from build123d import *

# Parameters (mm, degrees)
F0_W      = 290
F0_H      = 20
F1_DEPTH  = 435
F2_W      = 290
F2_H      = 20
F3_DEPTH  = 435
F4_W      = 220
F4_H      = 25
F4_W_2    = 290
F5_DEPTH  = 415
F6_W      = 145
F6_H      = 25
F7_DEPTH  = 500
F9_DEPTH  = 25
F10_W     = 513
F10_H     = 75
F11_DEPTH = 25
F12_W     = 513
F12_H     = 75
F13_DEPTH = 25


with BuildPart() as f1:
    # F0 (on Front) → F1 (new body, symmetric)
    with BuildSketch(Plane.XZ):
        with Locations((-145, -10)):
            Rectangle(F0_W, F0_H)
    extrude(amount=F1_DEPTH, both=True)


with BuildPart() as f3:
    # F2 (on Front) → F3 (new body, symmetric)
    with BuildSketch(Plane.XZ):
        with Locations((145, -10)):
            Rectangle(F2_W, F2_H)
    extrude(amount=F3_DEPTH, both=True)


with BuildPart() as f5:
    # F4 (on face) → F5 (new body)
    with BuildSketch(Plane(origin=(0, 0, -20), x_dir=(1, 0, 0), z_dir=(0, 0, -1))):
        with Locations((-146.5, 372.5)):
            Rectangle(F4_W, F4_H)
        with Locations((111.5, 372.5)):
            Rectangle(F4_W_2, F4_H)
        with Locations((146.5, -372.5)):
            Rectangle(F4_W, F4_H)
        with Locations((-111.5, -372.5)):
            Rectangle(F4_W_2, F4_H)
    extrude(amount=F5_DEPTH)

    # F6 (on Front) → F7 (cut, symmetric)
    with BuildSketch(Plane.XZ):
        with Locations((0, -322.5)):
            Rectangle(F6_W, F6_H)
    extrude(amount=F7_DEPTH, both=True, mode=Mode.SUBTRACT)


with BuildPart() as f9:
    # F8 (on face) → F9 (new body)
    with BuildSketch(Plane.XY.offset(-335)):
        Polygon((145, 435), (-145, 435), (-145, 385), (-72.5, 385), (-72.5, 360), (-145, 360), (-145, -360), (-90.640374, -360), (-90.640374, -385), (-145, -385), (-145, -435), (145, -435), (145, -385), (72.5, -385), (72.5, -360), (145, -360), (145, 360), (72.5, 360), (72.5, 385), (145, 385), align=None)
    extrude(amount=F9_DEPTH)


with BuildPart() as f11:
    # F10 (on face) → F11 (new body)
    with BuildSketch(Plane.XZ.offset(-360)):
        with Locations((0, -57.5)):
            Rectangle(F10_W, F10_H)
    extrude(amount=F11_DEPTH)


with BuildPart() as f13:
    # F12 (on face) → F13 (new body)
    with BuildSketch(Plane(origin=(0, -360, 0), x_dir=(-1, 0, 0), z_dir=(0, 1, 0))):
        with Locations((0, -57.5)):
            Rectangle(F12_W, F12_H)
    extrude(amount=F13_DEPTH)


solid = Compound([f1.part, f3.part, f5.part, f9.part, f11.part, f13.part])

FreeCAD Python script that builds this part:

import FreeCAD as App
import Part
import Sketcher
from FreeCAD import Vector

doc = App.newDocument("Part")
body = doc.addObject("PartDesign::Body", "Body")

# Sketch on XZ plane
sketch1 = body.newObject("Sketcher::SketchObject", "Sketch")
sketch1.AttachmentSupport = (doc.getObject("XZ_Plane"), [""])
sketch1.MapMode = "FlatFace"
sketch1.addGeometry(Part.LineSegment(Vector(-290, 0, 0), Vector(-290, -20, 0)), False)
sketch1.addGeometry(Part.LineSegment(Vector(-290, -20, 0), Vector(0, -20, 0)), False)
sketch1.addGeometry(Part.LineSegment(Vector(0, -20, 0), Vector(0, 0, 0)), False)
sketch1.addGeometry(Part.LineSegment(Vector(0, 0, 0), Vector(-290, 0, 0)), False)
sketch1.addConstraint(Sketcher.Constraint("Coincident", 0, 2, 1, 1))
sketch1.addConstraint(Sketcher.Constraint("Coincident", 1, 2, 2, 1))
sketch1.addConstraint(Sketcher.Constraint("Coincident", 2, 2, 3, 1))
sketch1.addConstraint(Sketcher.Constraint("Coincident", 3, 2, 0, 1))
sketch1.addConstraint(Sketcher.Constraint("Vertical", 0))
sketch1.addConstraint(Sketcher.Constraint("Horizontal", 1))
sketch1.addConstraint(Sketcher.Constraint("Vertical", 2))
sketch1.addConstraint(Sketcher.Constraint("Horizontal", 3))
sketch1.addConstraint(Sketcher.Constraint("Coincident", 2, 2, -1, 1))
sketch1.addConstraint(Sketcher.Constraint("DistanceX", 1, 1, 1, 2, 290.0))
sketch1.addConstraint(Sketcher.Constraint("DistanceY", 0, 2, 0, 1, 20.0))
pad1 = body.newObject("PartDesign::Pad", "Pad")
pad1.Profile = sketch1
pad1.Length = 870
pad1.Midplane = True
body2 = doc.addObject("PartDesign::Body", "Body001")

# Sketch on XZ plane
sketch2 = body2.newObject("Sketcher::SketchObject", "Sketch001")
sketch2.AttachmentSupport = (doc.getObject("XZ_Plane001"), [""])
sketch2.MapMode = "FlatFace"
sketch2.addGeometry(Part.LineSegment(Vector(0, 0, 0), Vector(0, -20, 0)), False)
sketch2.addGeometry(Part.LineSegment(Vector(0, -20, 0), Vector(290, -20, 0)), False)
sketch2.addGeometry(Part.LineSegment(Vector(290, -20, 0), Vector(290, 0, 0)), False)
sketch2.addGeometry(Part.LineSegment(Vector(290, 0, 0), Vector(0, 0, 0)), False)
sketch2.addConstraint(Sketcher.Constraint("Coincident", 0, 2, 1, 1))
sketch2.addConstraint(Sketcher.Constraint("Coincident", 1, 2, 2, 1))
sketch2.addConstraint(Sketcher.Constraint("Coincident", 2, 2, 3, 1))
sketch2.addConstraint(Sketcher.Constraint("Coincident", 3, 2, 0, 1))
sketch2.addConstraint(Sketcher.Constraint("Vertical", 0))
sketch2.addConstraint(Sketcher.Constraint("Horizontal", 1))
sketch2.addConstraint(Sketcher.Constraint("Vertical", 2))
sketch2.addConstraint(Sketcher.Constraint("Horizontal", 3))
sketch2.addConstraint(Sketcher.Constraint("Coincident", 3, 2, -1, 1))
sketch2.addConstraint(Sketcher.Constraint("DistanceX", 1, 1, 1, 2, 290.0))
sketch2.addConstraint(Sketcher.Constraint("DistanceY", 0, 2, 0, 1, 20.0))
pad2 = body2.newObject("PartDesign::Pad", "Pad001")
pad2.Profile = sketch2
pad2.Length = 870
pad2.Midplane = True
body3 = doc.addObject("PartDesign::Body", "Body002")
body3.AllowCompound = True

# Sketch on XY plane
sketch3 = body3.newObject("Sketcher::SketchObject", "Sketch002")
sketch3.AttachmentSupport = (doc.getObject("XY_Plane002"), [""])
sketch3.MapMode = "FlatFace"
sketch3.AttachmentOffset = App.Placement(Vector(0, 0, -20), App.Rotation())
sketch3.addGeometry(Part.LineSegment(Vector(-256.5, -385, 0), Vector(-256.5, -360, 0)), False)
sketch3.addGeometry(Part.LineSegment(Vector(-256.5, -360, 0), Vector(-36.5, -360, 0)), False)
sketch3.addGeometry(Part.LineSegment(Vector(-36.5, -360, 0), Vector(-36.5, -385, 0)), False)
sketch3.addGeometry(Part.LineSegment(Vector(-36.5, -385, 0), Vector(-256.5, -385, 0)), False)
sketch3.addGeometry(Part.LineSegment(Vector(-33.5, -385, 0), Vector(-33.5, -360, 0)), False)
sketch3.addGeometry(Part.LineSegment(Vector(-33.5, -360, 0), Vector(256.5, -360, 0)), False)
sketch3.addGeometry(Part.LineSegment(Vector(256.5, -360, 0), Vector(256.5, -385, 0)), False)
sketch3.addGeometry(Part.LineSegment(Vector(256.5, -385, 0), Vector(-33.5, -385, 0)), False)
sketch3.addGeometry(Part.LineSegment(Vector(36.5, 360, 0), Vector(36.5, 385, 0)), False)
sketch3.addGeometry(Part.LineSegment(Vector(36.5, 385, 0), Vector(256.5, 385, 0)), False)
sketch3.addGeometry(Part.LineSegment(Vector(256.5, 385, 0), Vector(256.5, 360, 0)), False)
sketch3.addGeometry(Part.LineSegment(Vector(256.5, 360, 0), Vector(36.5, 360, 0)), False)
sketch3.addGeometry(Part.LineSegment(Vector(-256.5, 360, 0), Vector(-256.5, 385, 0)), False)
sketch3.addGeometry(Part.LineSegment(Vector(-256.5, 385, 0), Vector(33.5, 385, 0)), False)
sketch3.addGeometry(Part.LineSegment(Vector(33.5, 385, 0), Vector(33.5, 360, 0)), False)
sketch3.addGeometry(Part.LineSegment(Vector(33.5, 360, 0), Vector(-256.5, 360, 0)), False)
sketch3.addConstraint(Sketcher.Constraint("Coincident", 0, 2, 1, 1))
sketch3.addConstraint(Sketcher.Constraint("Coincident", 1, 2, 2, 1))
sketch3.addConstraint(Sketcher.Constraint("Coincident", 2, 2, 3, 1))
sketch3.addConstraint(Sketcher.Constraint("Coincident", 3, 2, 0, 1))
sketch3.addConstraint(Sketcher.Constraint("Coincident", 4, 2, 5, 1))
sketch3.addConstraint(Sketcher.Constraint("Coincident", 5, 2, 6, 1))
sketch3.addConstraint(Sketcher.Constraint("Coincident", 6, 2, 7, 1))
sketch3.addConstraint(Sketcher.Constraint("Coincident", 7, 2, 4, 1))
sketch3.addConstraint(Sketcher.Constraint("Coincident", 8, 2, 9, 1))
sketch3.addConstraint(Sketcher.Constraint("Coincident", 9, 2, 10, 1))
sketch3.addConstraint(Sketcher.Constraint("Coincident", 10, 2, 11, 1))
sketch3.addConstraint(Sketcher.Constraint("Coincident", 11, 2, 8, 1))
sketch3.addConstraint(Sketcher.Constraint("Coincident", 12, 2, 13, 1))
sketch3.addConstraint(Sketcher.Constraint("Coincident", 13, 2, 14, 1))
sketch3.addConstraint(Sketcher.Constraint("Coincident", 14, 2, 15, 1))
sketch3.addConstraint(Sketcher.Constraint("Coincident", 15, 2, 12, 1))
sketch3.addConstraint(Sketcher.Constraint("Vertical", 0))
sketch3.addConstraint(Sketcher.Constraint("Horizontal", 1))
sketch3.addConstraint(Sketcher.Constraint("Vertical", 2))
sketch3.addConstraint(Sketcher.Constraint("Horizontal", 3))
sketch3.addConstraint(Sketcher.Constraint("Vertical", 4))
sketch3.addConstraint(Sketcher.Constraint("Horizontal", 5))
sketch3.addConstraint(Sketcher.Constraint("Vertical", 6))
sketch3.addConstraint(Sketcher.Constraint("Horizontal", 7))
sketch3.addConstraint(Sketcher.Constraint("Vertical", 8))
sketch3.addConstraint(Sketcher.Constraint("Horizontal", 9))
sketch3.addConstraint(Sketcher.Constraint("Vertical", 10))
sketch3.addConstraint(Sketcher.Constraint("Horizontal", 11))
sketch3.addConstraint(Sketcher.Constraint("Vertical", 12))
sketch3.addConstraint(Sketcher.Constraint("Horizontal", 13))
sketch3.addConstraint(Sketcher.Constraint("Vertical", 14))
sketch3.addConstraint(Sketcher.Constraint("Horizontal", 15))
sketch3.addConstraint(Sketcher.Constraint("Symmetric", 2, 2, 8, 2, -1, 1))
sketch3.addConstraint(Sketcher.Constraint("Symmetric", 0, 2, 10, 2, -1, 1))
sketch3.addConstraint(Sketcher.Constraint("Symmetric", 6, 2, 12, 2, -1, 1))
sketch3.addConstraint(Sketcher.Constraint("Symmetric", 4, 2, 14, 2, -1, 1))
sketch3.addConstraint(Sketcher.Constraint("Symmetric", 0, 2, 5, 2, -2))
sketch3.addConstraint(Sketcher.Constraint("Horizontal", 3, 2, 6, 2))
sketch3.addConstraint(Sketcher.Constraint("DistanceX", 1, 1, 1, 2, 220.0))
sketch3.addConstraint(Sketcher.Constraint("DistanceX", 5, 1, 5, 2, 290.0))
sketch3.addConstraint(Sketcher.Constraint("DistanceY", 0, 1, 0, 2, 25.0))
sketch3.addConstraint(Sketcher.Constraint("DistanceY", 0, 2, -1, 1, 360.0))
sketch3.addConstraint(Sketcher.Constraint("DistanceX", 1, 2, 4, 2, 3.0))
pad3 = body3.newObject("PartDesign::Pad", "Pad002")
pad3.Profile = sketch3
pad3.Length = 415
pad3.Reversed = True

# Sketch on XZ plane
sketch4 = body3.newObject("Sketcher::SketchObject", "Sketch003")
sketch4.AttachmentSupport = (doc.getObject("XZ_Plane002"), [""])
sketch4.MapMode = "FlatFace"
sketch4.addGeometry(Part.LineSegment(Vector(-72.5, -310, 0), Vector(-72.5, -335, 0)), False)
sketch4.addGeometry(Part.LineSegment(Vector(-72.5, -335, 0), Vector(72.5, -335, 0)), False)
sketch4.addGeometry(Part.LineSegment(Vector(72.5, -335, 0), Vector(72.5, -310, 0)), False)
sketch4.addGeometry(Part.LineSegment(Vector(72.5, -310, 0), Vector(-72.5, -310, 0)), False)
sketch4.addConstraint(Sketcher.Constraint("Coincident", 0, 2, 1, 1))
sketch4.addConstraint(Sketcher.Constraint("Coincident", 1, 2, 2, 1))
sketch4.addConstraint(Sketcher.Constraint("Coincident", 2, 2, 3, 1))
sketch4.addConstraint(Sketcher.Constraint("Coincident", 3, 2, 0, 1))
sketch4.addConstraint(Sketcher.Constraint("Vertical", 0))
sketch4.addConstraint(Sketcher.Constraint("Horizontal", 1))
sketch4.addConstraint(Sketcher.Constraint("Vertical", 2))
sketch4.addConstraint(Sketcher.Constraint("Horizontal", 3))
sketch4.addConstraint(Sketcher.Constraint("DistanceX", 1, 1, 1, 2, 145.0))
sketch4.addConstraint(Sketcher.Constraint("DistanceY", 0, 2, 0, 1, 25.0))
sketch4.addConstraint(Sketcher.Constraint("DistanceY", 0, 2, -1, 1, 335.0))
sketch4.addConstraint(Sketcher.Constraint("DistanceX", 0, 2, -1, 1, 72.5))
pocket1 = body3.newObject("PartDesign::Pocket", "Pocket")
pocket1.Profile = sketch4
pocket1.Length = 1000
pocket1.Midplane = True
body4 = doc.addObject("PartDesign::Body", "Body003")

# Sketch on XY plane
sketch5 = body4.newObject("Sketcher::SketchObject", "Sketch004")
sketch5.AttachmentSupport = (doc.getObject("XY_Plane003"), [""])
sketch5.MapMode = "FlatFace"
sketch5.AttachmentOffset = App.Placement(Vector(0, 0, -335), App.Rotation())
sketch5.addGeometry(Part.LineSegment(Vector(145, 435, 0), Vector(-145, 435, 0)), False)
sketch5.addGeometry(Part.LineSegment(Vector(-145, 435, 0), Vector(-145, 385, 0)), False)
sketch5.addGeometry(Part.LineSegment(Vector(-145, 385, 0), Vector(-72.5, 385, 0)), False)
sketch5.addGeometry(Part.LineSegment(Vector(-72.5, 385, 0), Vector(-72.5, 360, 0)), False)
sketch5.addGeometry(Part.LineSegment(Vector(-72.5, 360, 0), Vector(-145, 360, 0)), False)
sketch5.addGeometry(Part.LineSegment(Vector(-145, 360, 0), Vector(-145, -360, 0)), False)
sketch5.addGeometry(Part.LineSegment(Vector(-145, -360, 0), Vector(-90.640374, -360, 0)), False)
sketch5.addGeometry(Part.LineSegment(Vector(-90.640374, -360, 0), Vector(-90.640374, -385, 0)), False)
sketch5.addGeometry(Part.LineSegment(Vector(-90.640374, -385, 0), Vector(-145, -385, 0)), False)
sketch5.addGeometry(Part.LineSegment(Vector(-145, -385, 0), Vector(-145, -435, 0)), False)
sketch5.addGeometry(Part.LineSegment(Vector(-145, -435, 0), Vector(145, -435, 0)), False)
sketch5.addGeometry(Part.LineSegment(Vector(145, -435, 0), Vector(145, -385, 0)), False)
sketch5.addGeometry(Part.LineSegment(Vector(145, -385, 0), Vector(72.5, -385, 0)), False)
sketch5.addGeometry(Part.LineSegment(Vector(72.5, -385, 0), Vector(72.5, -360, 0)), False)
sketch5.addGeometry(Part.LineSegment(Vector(72.5, -360, 0), Vector(145, -360, 0)), False)
sketch5.addGeometry(Part.LineSegment(Vector(145, -360, 0), Vector(145, 360, 0)), False)
sketch5.addGeometry(Part.LineSegment(Vector(145, 360, 0), Vector(72.5, 360, 0)), False)
sketch5.addGeometry(Part.LineSegment(Vector(72.5, 360, 0), Vector(72.5, 385, 0)), False)
sketch5.addGeometry(Part.LineSegment(Vector(72.5, 385, 0), Vector(145, 385, 0)), False)
sketch5.addGeometry(Part.LineSegment(Vector(145, 385, 0), Vector(145, 435, 0)), False)
sketch5.addConstraint(Sketcher.Constraint("Coincident", 0, 2, 1, 1))
sketch5.addConstraint(Sketcher.Constraint("Coincident", 1, 2, 2, 1))
sketch5.addConstraint(Sketcher.Constraint("Coincident", 2, 2, 3, 1))
sketch5.addConstraint(Sketcher.Constraint("Coincident", 3, 2, 4, 1))
sketch5.addConstraint(Sketcher.Constraint("Coincident", 4, 2, 5, 1))
sketch5.addConstraint(Sketcher.Constraint("Coincident", 5, 2, 6, 1))
sketch5.addConstraint(Sketcher.Constraint("Coincident", 6, 2, 7, 1))
sketch5.addConstraint(Sketcher.Constraint("Coincident", 7, 2, 8, 1))
sketch5.addConstraint(Sketcher.Constraint("Coincident", 8, 2, 9, 1))
sketch5.addConstraint(Sketcher.Constraint("Coincident", 9, 2, 10, 1))
sketch5.addConstraint(Sketcher.Constraint("Coincident", 10, 2, 11, 1))
sketch5.addConstraint(Sketcher.Constraint("Coincident", 11, 2, 12, 1))
sketch5.addConstraint(Sketcher.Constraint("Coincident", 12, 2, 13, 1))
sketch5.addConstraint(Sketcher.Constraint("Coincident", 13, 2, 14, 1))
sketch5.addConstraint(Sketcher.Constraint("Coincident", 14, 2, 15, 1))
sketch5.addConstraint(Sketcher.Constraint("Coincident", 15, 2, 16, 1))
sketch5.addConstraint(Sketcher.Constraint("Coincident", 16, 2, 17, 1))
sketch5.addConstraint(Sketcher.Constraint("Coincident", 17, 2, 18, 1))
sketch5.addConstraint(Sketcher.Constraint("Coincident", 18, 2, 19, 1))
sketch5.addConstraint(Sketcher.Constraint("Coincident", 19, 2, 0, 1))
sketch5.addConstraint(Sketcher.Constraint("Horizontal", 0))
sketch5.addConstraint(Sketcher.Constraint("Vertical", 1))
sketch5.addConstraint(Sketcher.Constraint("Horizontal", 2))
sketch5.addConstraint(Sketcher.Constraint("Vertical", 3))
sketch5.addConstraint(Sketcher.Constraint("Horizontal", 4))
sketch5.addConstraint(Sketcher.Constraint("Vertical", 5))
sketch5.addConstraint(Sketcher.Constraint("Horizontal", 6))
sketch5.addConstraint(Sketcher.Constraint("Vertical", 7))
sketch5.addConstraint(Sketcher.Constraint("Horizontal", 8))
sketch5.addConstraint(Sketcher.Constraint("Vertical", 9))
sketch5.addConstraint(Sketcher.Constraint("Horizontal", 10))
sketch5.addConstraint(Sketcher.Constraint("Vertical", 11))
sketch5.addConstraint(Sketcher.Constraint("Horizontal", 12))
sketch5.addConstraint(Sketcher.Constraint("Vertical", 13))
sketch5.addConstraint(Sketcher.Constraint("Horizontal", 14))
sketch5.addConstraint(Sketcher.Constraint("Vertical", 15))
sketch5.addConstraint(Sketcher.Constraint("Horizontal", 16))
sketch5.addConstraint(Sketcher.Constraint("Vertical", 17))
sketch5.addConstraint(Sketcher.Constraint("Horizontal", 18))
sketch5.addConstraint(Sketcher.Constraint("Vertical", 19))
sketch5.addConstraint(Sketcher.Constraint("Symmetric", 0, 2, 10, 2, -1, 1))
sketch5.addConstraint(Sketcher.Constraint("Symmetric", 2, 2, 12, 2, -1, 1))
sketch5.addConstraint(Sketcher.Constraint("Symmetric", 4, 2, 14, 2, -1, 1))
sketch5.addConstraint(Sketcher.Constraint("Symmetric", 8, 2, 18, 2, -1, 1))
sketch5.addConstraint(Sketcher.Constraint("Symmetric", 8, 2, 11, 2, -2))
sketch5.addConstraint(Sketcher.Constraint("Symmetric", 3, 2, 16, 2, -2))
sketch5.addConstraint(Sketcher.Constraint("Horizontal", 6, 2, 13, 2))
sketch5.addConstraint(Sketcher.Constraint("Vertical", 1, 2, 4, 2))
sketch5.addConstraint(Sketcher.Constraint("DistanceX", 0, 2, 0, 1, 290.0))
sketch5.addConstraint(Sketcher.Constraint("DistanceY", 1, 2, 1, 1, 50.0))
sketch5.addConstraint(Sketcher.Constraint("DistanceY", 3, 2, 3, 1, 25.0))
sketch5.addConstraint(Sketcher.Constraint("DistanceY", 5, 2, 5, 1, 720.0))
sketch5.addConstraint(Sketcher.Constraint("DistanceX", 2, 1, 2, 2, 72.5))
sketch5.addConstraint(Sketcher.Constraint("DistanceX", 6, 1, 6, 2, 54.359626))
pad4 = body4.newObject("PartDesign::Pad", "Pad003")
pad4.Profile = sketch5
pad4.Length = 25
body5 = doc.addObject("PartDesign::Body", "Body004")

# Sketch on XZ plane
sketch6 = body5.newObject("Sketcher::SketchObject", "Sketch005")
sketch6.AttachmentSupport = (doc.getObject("XZ_Plane004"), [""])
sketch6.MapMode = "FlatFace"
sketch6.AttachmentOffset = App.Placement(Vector(0, 0, -360), App.Rotation())
sketch6.addGeometry(Part.LineSegment(Vector(-256.5, -20, 0), Vector(-256.5, -95, 0)), False)
sketch6.addGeometry(Part.LineSegment(Vector(-256.5, -95, 0), Vector(256.5, -95, 0)), False)
sketch6.addGeometry(Part.LineSegment(Vector(256.5, -95, 0), Vector(256.5, -20, 0)), False)
sketch6.addGeometry(Part.LineSegment(Vector(256.5, -20, 0), Vector(-256.5, -20, 0)), False)
sketch6.addConstraint(Sketcher.Constraint("Coincident", 0, 2, 1, 1))
sketch6.addConstraint(Sketcher.Constraint("Coincident", 1, 2, 2, 1))
sketch6.addConstraint(Sketcher.Constraint("Coincident", 2, 2, 3, 1))
sketch6.addConstraint(Sketcher.Constraint("Coincident", 3, 2, 0, 1))
sketch6.addConstraint(Sketcher.Constraint("Vertical", 0))
sketch6.addConstraint(Sketcher.Constraint("Horizontal", 1))
sketch6.addConstraint(Sketcher.Constraint("Vertical", 2))
sketch6.addConstraint(Sketcher.Constraint("Horizontal", 3))
sketch6.addConstraint(Sketcher.Constraint("DistanceX", 1, 1, 1, 2, 513.0))
sketch6.addConstraint(Sketcher.Constraint("DistanceY", 0, 2, 0, 1, 75.0))
sketch6.addConstraint(Sketcher.Constraint("DistanceY", 0, 2, -1, 1, 95.0))
sketch6.addConstraint(Sketcher.Constraint("DistanceX", 0, 2, -1, 1, 256.5))
pad5 = body5.newObject("PartDesign::Pad", "Pad004")
pad5.Profile = sketch6
pad5.Length = 25
body6 = doc.addObject("PartDesign::Body", "Body005")

# Sketch on XZ plane
sketch7 = body6.newObject("Sketcher::SketchObject", "Sketch006")
sketch7.AttachmentSupport = (doc.getObject("XZ_Plane005"), [""])
sketch7.MapMode = "FlatFace"
sketch7.AttachmentOffset = App.Placement(Vector(0, 0, 360), App.Rotation())
sketch7.addGeometry(Part.LineSegment(Vector(256.5, -20, 0), Vector(256.5, -95, 0)), False)
sketch7.addGeometry(Part.LineSegment(Vector(256.5, -95, 0), Vector(-256.5, -95, 0)), False)
sketch7.addGeometry(Part.LineSegment(Vector(-256.5, -95, 0), Vector(-256.5, -20, 0)), False)
sketch7.addGeometry(Part.LineSegment(Vector(-256.5, -20, 0), Vector(256.5, -20, 0)), False)
sketch7.addConstraint(Sketcher.Constraint("Coincident", 0, 2, 1, 1))
sketch7.addConstraint(Sketcher.Constraint("Coincident", 1, 2, 2, 1))
sketch7.addConstraint(Sketcher.Constraint("Coincident", 2, 2, 3, 1))
sketch7.addConstraint(Sketcher.Constraint("Coincident", 3, 2, 0, 1))
sketch7.addConstraint(Sketcher.Constraint("Vertical", 0))
sketch7.addConstraint(Sketcher.Constraint("Horizontal", 1))
sketch7.addConstraint(Sketcher.Constraint("Vertical", 2))
sketch7.addConstraint(Sketcher.Constraint("Horizontal", 3))
sketch7.addConstraint(Sketcher.Constraint("DistanceX", 1, 2, 1, 1, 513.0))
sketch7.addConstraint(Sketcher.Constraint("DistanceY", 0, 2, 0, 1, 75.0))
sketch7.addConstraint(Sketcher.Constraint("DistanceY", 0, 2, -1, 1, 95.0))
sketch7.addConstraint(Sketcher.Constraint("DistanceX", -1, 1, 0, 2, 256.5))
pad6 = body6.newObject("PartDesign::Pad", "Pad005")
pad6.Profile = sketch7
pad6.Length = 25
pad6.Reversed = True

doc.recompute()
